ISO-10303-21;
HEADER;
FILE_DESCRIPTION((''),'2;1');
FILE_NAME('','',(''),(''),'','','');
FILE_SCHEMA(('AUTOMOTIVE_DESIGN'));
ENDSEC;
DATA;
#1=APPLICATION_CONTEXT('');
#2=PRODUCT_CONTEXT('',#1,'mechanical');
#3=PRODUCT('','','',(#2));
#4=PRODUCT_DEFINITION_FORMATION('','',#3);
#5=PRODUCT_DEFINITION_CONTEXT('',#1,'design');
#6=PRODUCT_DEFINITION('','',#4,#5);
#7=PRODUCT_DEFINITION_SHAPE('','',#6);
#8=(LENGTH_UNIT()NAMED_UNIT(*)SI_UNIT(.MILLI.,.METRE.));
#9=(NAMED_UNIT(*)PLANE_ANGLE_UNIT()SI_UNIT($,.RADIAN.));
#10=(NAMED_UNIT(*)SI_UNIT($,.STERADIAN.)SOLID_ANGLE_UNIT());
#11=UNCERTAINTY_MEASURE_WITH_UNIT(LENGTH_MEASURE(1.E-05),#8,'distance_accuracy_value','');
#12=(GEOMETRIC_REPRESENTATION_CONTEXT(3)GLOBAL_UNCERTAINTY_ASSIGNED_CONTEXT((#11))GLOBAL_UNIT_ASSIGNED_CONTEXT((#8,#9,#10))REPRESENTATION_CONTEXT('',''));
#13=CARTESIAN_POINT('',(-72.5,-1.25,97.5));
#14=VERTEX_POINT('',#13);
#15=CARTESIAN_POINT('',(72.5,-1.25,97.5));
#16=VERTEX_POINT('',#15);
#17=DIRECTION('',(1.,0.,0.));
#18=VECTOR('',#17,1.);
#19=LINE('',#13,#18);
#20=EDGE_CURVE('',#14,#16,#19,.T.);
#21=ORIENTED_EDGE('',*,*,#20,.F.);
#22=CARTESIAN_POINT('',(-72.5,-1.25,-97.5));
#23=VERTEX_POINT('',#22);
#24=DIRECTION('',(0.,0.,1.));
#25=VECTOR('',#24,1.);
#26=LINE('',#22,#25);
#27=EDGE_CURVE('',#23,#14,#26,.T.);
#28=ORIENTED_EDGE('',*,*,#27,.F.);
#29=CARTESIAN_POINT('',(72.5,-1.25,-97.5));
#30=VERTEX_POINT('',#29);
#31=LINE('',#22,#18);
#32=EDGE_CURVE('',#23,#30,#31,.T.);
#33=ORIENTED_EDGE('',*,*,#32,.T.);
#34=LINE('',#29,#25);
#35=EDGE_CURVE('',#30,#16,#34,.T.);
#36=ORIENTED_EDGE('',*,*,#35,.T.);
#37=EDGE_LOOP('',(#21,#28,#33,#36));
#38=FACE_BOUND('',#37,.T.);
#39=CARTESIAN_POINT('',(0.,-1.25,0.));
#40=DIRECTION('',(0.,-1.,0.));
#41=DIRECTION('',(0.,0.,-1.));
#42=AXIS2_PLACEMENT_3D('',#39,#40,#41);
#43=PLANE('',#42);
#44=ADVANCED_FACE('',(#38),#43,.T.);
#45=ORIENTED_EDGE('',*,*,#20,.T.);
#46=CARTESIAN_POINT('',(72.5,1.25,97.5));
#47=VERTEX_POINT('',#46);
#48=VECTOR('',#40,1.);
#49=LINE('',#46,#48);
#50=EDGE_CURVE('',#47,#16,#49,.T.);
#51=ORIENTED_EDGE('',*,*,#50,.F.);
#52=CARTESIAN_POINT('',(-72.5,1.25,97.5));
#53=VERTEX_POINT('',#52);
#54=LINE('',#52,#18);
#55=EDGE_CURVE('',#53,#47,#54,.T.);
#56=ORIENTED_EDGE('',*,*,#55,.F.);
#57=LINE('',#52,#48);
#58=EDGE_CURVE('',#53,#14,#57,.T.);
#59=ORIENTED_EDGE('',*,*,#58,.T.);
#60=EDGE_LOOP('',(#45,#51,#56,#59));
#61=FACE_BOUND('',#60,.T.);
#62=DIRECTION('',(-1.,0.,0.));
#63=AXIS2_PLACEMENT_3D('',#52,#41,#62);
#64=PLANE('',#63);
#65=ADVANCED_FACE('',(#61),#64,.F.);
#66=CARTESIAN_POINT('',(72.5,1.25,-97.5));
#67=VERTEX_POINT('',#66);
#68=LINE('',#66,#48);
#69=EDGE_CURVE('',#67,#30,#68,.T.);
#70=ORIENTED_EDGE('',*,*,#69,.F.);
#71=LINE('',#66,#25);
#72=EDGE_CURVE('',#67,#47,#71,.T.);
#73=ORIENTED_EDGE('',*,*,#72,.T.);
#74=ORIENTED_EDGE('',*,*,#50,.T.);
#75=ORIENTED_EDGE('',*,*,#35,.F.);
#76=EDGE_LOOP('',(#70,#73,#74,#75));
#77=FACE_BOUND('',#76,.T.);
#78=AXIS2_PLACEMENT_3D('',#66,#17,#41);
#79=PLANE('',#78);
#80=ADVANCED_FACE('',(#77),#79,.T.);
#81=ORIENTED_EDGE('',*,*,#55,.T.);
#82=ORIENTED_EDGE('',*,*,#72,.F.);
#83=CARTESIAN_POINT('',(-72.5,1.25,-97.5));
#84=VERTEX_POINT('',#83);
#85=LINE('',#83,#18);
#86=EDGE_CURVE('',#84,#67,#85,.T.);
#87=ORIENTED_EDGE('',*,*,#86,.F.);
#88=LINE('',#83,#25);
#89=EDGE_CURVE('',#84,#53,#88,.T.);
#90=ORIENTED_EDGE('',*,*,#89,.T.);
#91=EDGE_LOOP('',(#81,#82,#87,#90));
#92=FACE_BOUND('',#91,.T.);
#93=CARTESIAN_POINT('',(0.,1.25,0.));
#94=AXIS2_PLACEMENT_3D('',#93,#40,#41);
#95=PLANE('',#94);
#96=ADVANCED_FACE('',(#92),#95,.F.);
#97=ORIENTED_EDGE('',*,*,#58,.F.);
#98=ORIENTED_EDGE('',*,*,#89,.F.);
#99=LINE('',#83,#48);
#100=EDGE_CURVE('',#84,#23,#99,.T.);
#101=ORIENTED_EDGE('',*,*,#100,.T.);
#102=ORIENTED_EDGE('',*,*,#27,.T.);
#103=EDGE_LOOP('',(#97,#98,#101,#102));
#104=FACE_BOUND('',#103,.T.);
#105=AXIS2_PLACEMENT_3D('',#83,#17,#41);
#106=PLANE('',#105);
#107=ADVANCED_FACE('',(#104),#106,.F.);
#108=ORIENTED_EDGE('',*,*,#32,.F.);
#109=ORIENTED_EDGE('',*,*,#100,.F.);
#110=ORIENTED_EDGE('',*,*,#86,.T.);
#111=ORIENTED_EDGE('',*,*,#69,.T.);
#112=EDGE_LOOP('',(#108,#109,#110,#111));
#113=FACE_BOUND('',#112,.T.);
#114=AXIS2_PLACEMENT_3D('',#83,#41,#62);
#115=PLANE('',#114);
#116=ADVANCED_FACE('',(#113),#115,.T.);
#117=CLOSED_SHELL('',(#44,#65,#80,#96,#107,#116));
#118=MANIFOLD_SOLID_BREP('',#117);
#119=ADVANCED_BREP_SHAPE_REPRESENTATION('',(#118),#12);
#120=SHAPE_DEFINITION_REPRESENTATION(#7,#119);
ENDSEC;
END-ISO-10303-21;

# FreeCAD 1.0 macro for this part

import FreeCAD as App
import Part
import Sketcher
Q = App.Units.Quantity

doc = App.newDocument("Part")
body = doc.addObject("PartDesign::Body", "Body")

sketch1 = body.newObject("Sketcher::SketchObject", "Sketch")
sketch1.AttachmentSupport = (doc.getObject("XZ_Plane"), [""])
sketch1.MapMode = "FlatFace"
sketch1.addGeometry(Part.LineSegment(App.Vector(-72, -98, 0), App.Vector(-72, 98, 0)), False)
sketch1.addGeometry(Part.LineSegment(App.Vector(-72, 98, 0), App.Vector(72, 98, 0)), False)
sketch1.addGeometry(Part.LineSegment(App.Vector(72, 98, 0), App.Vector(72, -98, 0)), False)
sketch1.addGeometry(Part.LineSegment(App.Vector(72, -98, 0), App.Vector(-72, -98, 0)), False)
sketch1.addConstraint(Sketcher.Constraint("Coincident", 0, 2, 1, 1))
sketch1.addConstraint(Sketcher.Constraint("Coincident", 1, 2, 2, 1))
sketch1.addConstraint(Sketcher.Constraint("Coincident", 2, 2, 3, 1))
sketch1.addConstraint(Sketcher.Constraint("Coincident", 3, 2, 0, 1))
sketch1.addConstraint(Sketcher.Constraint("Vertical", 0))
sketch1.addConstraint(Sketcher.Constraint("Horizontal", 1))
sketch1.addConstraint(Sketcher.Constraint("Vertical", 2))
sketch1.addConstraint(Sketcher.Constraint("Horizontal", 3))
sketch1.addConstraint(Sketcher.Constraint("Symmetric", 0, 2, 2, 2, -1, 1))
sketch1.addConstraint(Sketcher.Constraint("DistanceX", 1, 1, 1, 2, Q("145 mm")))
sketch1.addConstraint(Sketcher.Constraint("DistanceY", 0, 1, 0, 2, Q("195 mm")))
pad1 = body.newObject("PartDesign::Pad", "Pad")
pad1.Profile = sketch1
pad1.Length = 2.5
pad1.Midplane = True

doc.recompute()
